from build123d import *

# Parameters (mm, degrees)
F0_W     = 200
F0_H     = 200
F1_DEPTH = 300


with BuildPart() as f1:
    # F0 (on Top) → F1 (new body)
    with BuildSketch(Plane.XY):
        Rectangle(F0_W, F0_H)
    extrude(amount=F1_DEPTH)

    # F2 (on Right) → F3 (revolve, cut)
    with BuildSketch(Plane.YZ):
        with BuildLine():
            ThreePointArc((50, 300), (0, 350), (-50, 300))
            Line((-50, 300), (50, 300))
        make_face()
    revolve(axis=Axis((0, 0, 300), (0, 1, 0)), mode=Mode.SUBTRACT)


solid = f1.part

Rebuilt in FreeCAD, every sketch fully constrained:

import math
import FreeCAD as App
import Part
import Sketcher

V = App.Vector
Q = App.Units.Quantity


def add_polygon(sketch, points):
    """Adds a closed chain of lines whose ends are joined by coincident constraints."""
    first, n = sketch.GeometryCount, len(points)
    for a, b in zip(points, points[1:] + points[:1]):
        sketch.addGeometry(Part.LineSegment(App.Vector(*a, 0), App.Vector(*b, 0)), False)
    for i in range(n):
        sketch.addConstraint(Sketcher.Constraint("Coincident", first + i, 2, first + (i + 1) % n, 1))

doc = App.newDocument("Part")
body = doc.addObject("PartDesign::Body", "Body")

sketch1 = doc.addObject("Sketcher::SketchObject", "Sketch")
body.addObject(sketch1)
sketch1.AttachmentSupport = (doc.XY_Plane, [""])
sketch1.MapMode = "FlatFace"
add_polygon(sketch1, [(-100, 100), (-100, -100), (100, -100), (100, 100)])
sketch1.addConstraint(Sketcher.Constraint("Vertical", 0))
sketch1.addConstraint(Sketcher.Constraint("Horizontal", 1))
sketch1.addConstraint(Sketcher.Constraint("Vertical", 2))
sketch1.addConstraint(Sketcher.Constraint("Horizontal", 3))
sketch1.addConstraint(Sketcher.Constraint("Symmetric", 0, 2, 2, 2, -1, 1))
sketch1.addConstraint(Sketcher.Constraint("Equal", 3, 0))
sketch1.addConstraint(Sketcher.Constraint("DistanceX", 1, 1, 1, 2, Q("200 mm")))
pad1 = doc.addObject("PartDesign::Pad", "Pad")
body.addObject(pad1)
pad1.Profile = sketch1
pad1.Length = 300

sketch2 = doc.addObject("Sketcher::SketchObject", "Sketch001")
body.addObject(sketch2)
sketch2.AttachmentSupport = (doc.YZ_Plane, [""])
sketch2.MapMode = "FlatFace"
sketch2.addGeometry(Part.ArcOfCircle(Part.Circle(V(0, 300, 0), V(0, 0, 1), 50), math.radians(0), math.radians(180)), False)
sketch2.addGeometry(Part.LineSegment(V(-50, 300, 0), V(50, 300, 0)), False)
sketch2.addGeometry(Part.LineSegment(V(-50, 300, 0), V(50, 300, 0)), True)
sketch2.addConstraint(Sketcher.Constraint("Coincident", 0, 1, 1, 2))
sketch2.addConstraint(Sketcher.Constraint("Coincident", 1, 1, 0, 2))
sketch2.addConstraint(Sketcher.Constraint("Horizontal", 1))
sketch2.addConstraint(Sketcher.Constraint("Horizontal", 2))
sketch2.addConstraint(Sketcher.Constraint("Coincident", 2, 1, 1, 1))
sketch2.addConstraint(Sketcher.Constraint("PointOnObject", 0, 3, -2))
sketch2.addConstraint(Sketcher.Constraint("Equal", 1, 2))
sketch2.addConstraint(Sketcher.Constraint("Radius", 0, Q("50 mm")))
sketch2.addConstraint(Sketcher.Constraint("DistanceY", -1, 1, 0, 3, Q("300 mm")))
sketch2.addConstraint(Sketcher.Constraint("DistanceY", -1, 1, 0, 1, Q("300 mm")))
groove = doc.addObject("PartDesign::Groove", "Groove")
body.addObject(groove)
groove.Profile = sketch2
groove.ReferenceAxis = (sketch2, ["Axis0"])
groove.Angle = 360

doc.recompute()
